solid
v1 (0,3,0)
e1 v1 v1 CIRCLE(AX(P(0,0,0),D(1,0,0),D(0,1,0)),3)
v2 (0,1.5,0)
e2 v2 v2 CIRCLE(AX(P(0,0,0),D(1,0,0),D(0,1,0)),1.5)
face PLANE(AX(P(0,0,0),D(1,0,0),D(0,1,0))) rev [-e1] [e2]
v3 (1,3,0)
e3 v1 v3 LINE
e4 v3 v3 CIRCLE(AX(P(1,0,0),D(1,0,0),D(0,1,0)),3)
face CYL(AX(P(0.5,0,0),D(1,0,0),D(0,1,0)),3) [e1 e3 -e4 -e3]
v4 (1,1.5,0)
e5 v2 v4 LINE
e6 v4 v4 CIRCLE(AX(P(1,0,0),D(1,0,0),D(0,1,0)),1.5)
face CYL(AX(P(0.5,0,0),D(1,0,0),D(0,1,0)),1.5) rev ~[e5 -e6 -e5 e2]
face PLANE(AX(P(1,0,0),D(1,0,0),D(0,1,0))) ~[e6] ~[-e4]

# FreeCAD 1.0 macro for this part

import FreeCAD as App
import Part
import Sketcher
from FreeCAD import Vector

doc = App.newDocument("Part")
params = doc.addObject("Spreadsheet::Sheet", "Params")
for row, (alias, value) in enumerate([
    ("sketch1_width", "1 mm"),
    ("sketch1_height", "1.5 mm"),
    ("revolution_angle", "360 deg"),
], start=1):
    params.set(f"A{row}", alias)
    params.set(f"B{row}", "=" + value)
    params.setAlias(f"B{row}", alias)

body = doc.addObject("PartDesign::Body", "Body")

# Sketch on XY plane
sketch1 = doc.addObject("Sketcher::SketchObject", "Sketch")
body.addObject(sketch1)
sketch1.AttachmentSupport = (doc.XY_Plane, [""])
sketch1.MapMode = "FlatFace"
sketch1.addGeometry(Part.LineSegment(Vector(0, 3, 0), Vector(0, 1.5, 0)), False)
sketch1.addGeometry(Part.LineSegment(Vector(0, 1.5, 0), Vector(1, 1.5, 0)), False)
sketch1.addGeometry(Part.LineSegment(Vector(1, 1.5, 0), Vector(1, 3, 0)), False)
sketch1.addGeometry(Part.LineSegment(Vector(1, 3, 0), Vector(0, 3, 0)), False)
sketch1.addConstraint(Sketcher.Constraint("Coincident", 0, 2, 1, 1))
sketch1.addConstraint(Sketcher.Constraint("Coincident", 1, 2, 2, 1))
sketch1.addConstraint(Sketcher.Constraint("Coincident", 2, 2, 3, 1))
sketch1.addConstraint(Sketcher.Constraint("Coincident", 3, 2, 0, 1))
sketch1.addConstraint(Sketcher.Constraint("Vertical", 0))
sketch1.addConstraint(Sketcher.Constraint("Horizontal", 1))
sketch1.addConstraint(Sketcher.Constraint("Vertical", 2))
sketch1.addConstraint(Sketcher.Constraint("Horizontal", 3))
sketch1.addConstraint(Sketcher.Constraint("PointOnObject", 0, 2, -2))
sketch1.addConstraint(Sketcher.Constraint("DistanceX", 1, 1, 1, 2, 1.0))
sketch1.addConstraint(Sketcher.Constraint("DistanceY", 0, 2, 0, 1, 1.5))
sketch1.addConstraint(Sketcher.Constraint("DistanceY", -1, 1, 2, 2, 3.0))
sketch1.setExpression("Constraints[9]", "Params.sketch1_width")
sketch1.setExpression("Constraints[10]", "Params.sketch1_height")
revolution = doc.addObject("PartDesign::Revolution", "Revolution")
body.addObject(revolution)
revolution.Profile = sketch1
revolution.ReferenceAxis = (sketch1, ["H_Axis"])
revolution.setExpression("Angle", "Params.revolution_angle")

doc.recompute()
